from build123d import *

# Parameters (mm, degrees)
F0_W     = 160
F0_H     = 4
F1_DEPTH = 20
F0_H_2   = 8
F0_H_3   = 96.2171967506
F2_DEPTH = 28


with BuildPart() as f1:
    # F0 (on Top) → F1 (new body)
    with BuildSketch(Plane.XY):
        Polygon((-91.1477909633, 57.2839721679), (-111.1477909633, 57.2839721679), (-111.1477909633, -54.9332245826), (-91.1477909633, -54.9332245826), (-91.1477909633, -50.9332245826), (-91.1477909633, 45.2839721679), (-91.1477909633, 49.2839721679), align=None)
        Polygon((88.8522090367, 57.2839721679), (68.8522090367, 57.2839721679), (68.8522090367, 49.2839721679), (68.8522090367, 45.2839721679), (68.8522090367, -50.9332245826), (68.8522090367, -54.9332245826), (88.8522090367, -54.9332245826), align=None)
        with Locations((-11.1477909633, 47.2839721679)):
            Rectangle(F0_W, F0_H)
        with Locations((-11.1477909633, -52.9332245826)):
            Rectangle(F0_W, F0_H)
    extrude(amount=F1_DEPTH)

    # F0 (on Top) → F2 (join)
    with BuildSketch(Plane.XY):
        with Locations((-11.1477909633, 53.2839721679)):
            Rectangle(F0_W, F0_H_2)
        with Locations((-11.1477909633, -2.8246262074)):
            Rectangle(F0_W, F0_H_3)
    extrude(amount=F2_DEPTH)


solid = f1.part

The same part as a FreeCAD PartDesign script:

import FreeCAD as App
import Part
import Sketcher

V = App.Vector
Q = App.Units.Quantity


def add_polygon(sketch, points):
    """Adds a closed chain of lines whose ends are joined by coincident constraints."""
    first, n = sketch.GeometryCount, len(points)
    for a, b in zip(points, points[1:] + points[:1]):
        sketch.addGeometry(Part.LineSegment(App.Vector(*a, 0), App.Vector(*b, 0)), False)
    for i in range(n):
        sketch.addConstraint(Sketcher.Constraint("Coincident", first + i, 2, first + (i + 1) % n, 1))

doc = App.newDocument("Part")
params = doc.addObject("Spreadsheet::Sheet", "Params")
for row, (alias, value) in enumerate([
    ("sketch1_width", "20 mm"),
    ("sketch1_width2", "200 mm"),
    ("sketch1_height", "8 mm"),
    ("pad1_length", "20 mm"),
    ("sketch2_width", "160 mm"),
    ("sketch2_height", "8 mm"),
    ("pad2_length", "28 mm"),
], start=1):
    params.set(f"A{row}", alias)
    params.set(f"B{row}", "=" + value)
    params.setAlias(f"B{row}", alias)

body = doc.addObject("PartDesign::Body", "Body")

# Sketch on XY plane
sketch1 = body.newObject("Sketcher::SketchObject", "Sketch")
sketch1.AttachmentSupport = (doc.getObject("XY_Plane"), [""])
sketch1.MapMode = "FlatFace"
add_polygon(sketch1, [(-91.147791, 57.283972), (-111.147791, 57.283972), (-111.147791, -54.933225), (88.852209, -54.933225), (88.852209, 57.283972), (68.852209, 57.283972), (68.852209, 49.283972), (-91.147791, 49.283972)])  # lines 0-7
add_polygon(sketch1, [(-91.147791, -50.933225), (-91.147791, 45.283972), (68.852209, 45.283972), (68.852209, -50.933225)])  # lines 8-11
sketch1.addConstraint([
    Sketcher.Constraint("Horizontal", 0),
    Sketcher.Constraint("Vertical", 1),
    Sketcher.Constraint("Horizontal", 2),
    Sketcher.Constraint("Vertical", 3),
    Sketcher.Constraint("Horizontal", 4),
    Sketcher.Constraint("Vertical", 5),
    Sketcher.Constraint("Horizontal", 6),
    Sketcher.Constraint("Vertical", 7),
    Sketcher.Constraint("Vertical", 8),
    Sketcher.Constraint("Horizontal", 9),
    Sketcher.Constraint("Vertical", 10),
    Sketcher.Constraint("Horizontal", 11),
    Sketcher.Constraint("Horizontal", 0, 2, 3, 2),
    Sketcher.Constraint("Vertical", 7, 2, 8, 2),
    Sketcher.Constraint("Vertical", 5, 2, 9, 2),
    Sketcher.Constraint("Equal", 0, 4),
    Sketcher.Constraint("DistanceX", 0, 2, 0, 1, Q("20 mm")),
    Sketcher.Constraint("DistanceX", 2, 1, 2, 2, Q("200 mm")),
    Sketcher.Constraint("DistanceY", 5, 2, 5, 1, Q("8 mm")),
    Sketcher.Constraint("DistanceY", 8, 2, 6, 2, Q("4 mm")),
    Sketcher.Constraint("DistanceY", 2, 2, 10, 2, Q("4 mm")),
    Sketcher.Constraint("DistanceY", 1, 2, 1, 1, Q("112.217197 mm")),
    Sketcher.Constraint("DistanceX", 0, 2, -1, 1, Q("111.147791 mm")),
    Sketcher.Constraint("DistanceY", -1, 1, 0, 2, Q("57.283972 mm")),
])
sketch1.setExpression("Constraints[28]", "Params.sketch1_width")
sketch1.setExpression("Constraints[29]", "Params.sketch1_width2")
sketch1.setExpression("Constraints[30]", "Params.sketch1_height")
pad1 = body.newObject("PartDesign::Pad", "Pad")
pad1.Profile = sketch1
pad1.setExpression("Length", "Params.pad1_length")

# Sketch on XY plane
sketch2 = body.newObject("Sketcher::SketchObject", "Sketch001")
sketch2.AttachmentSupport = (doc.getObject("XY_Plane"), [""])
sketch2.MapMode = "FlatFace"
add_polygon(sketch2, [(-91.147791, 57.283972), (-91.147791, 49.283972), (68.852209, 49.283972), (68.852209, 57.283972)])  # lines 0-3
add_polygon(sketch2, [(-91.147791, 45.283972), (-91.147791, -50.933225), (68.852209, -50.933225), (68.852209, 45.283972)])  # lines 4-7
sketch2.addConstraint([
    Sketcher.Constraint("Vertical", 0),
    Sketcher.Constraint("Horizontal", 1),
    Sketcher.Constraint("Vertical", 2),
    Sketcher.Constraint("Horizontal", 3),
    Sketcher.Constraint("Vertical", 4),
    Sketcher.Constraint("Horizontal", 5),
    Sketcher.Constraint("Vertical", 6),
    Sketcher.Constraint("Horizontal", 7),
    Sketcher.Constraint("Vertical", 3, 2, 4, 2),
    Sketcher.Constraint("Vertical", 2, 2, 5, 2),
    Sketcher.Constraint("DistanceX", 1, 1, 1, 2, Q("160 mm")),
    Sketcher.Constraint("DistanceY", 0, 2, 0, 1, Q("8 mm")),
    Sketcher.Constraint("DistanceY", 6, 2, 1, 2, Q("4 mm")),
    Sketcher.Constraint("DistanceY", 4, 2, 4, 1, Q("96.217197 mm")),
    Sketcher.Constraint("DistanceX", 0, 2, -1, 1, Q("91.147791 mm")),
    Sketcher.Constraint("DistanceY", -1, 1, 0, 2, Q("49.283972 mm")),
])
sketch2.setExpression("Constraints[18]", "Params.sketch2_width")
sketch2.setExpression("Constraints[19]", "Params.sketch2_height")
pad2 = body.newObject("PartDesign::Pad", "Pad001")
pad2.Profile = sketch2
pad2.setExpression("Length", "Params.pad2_length")

doc.recompute()
